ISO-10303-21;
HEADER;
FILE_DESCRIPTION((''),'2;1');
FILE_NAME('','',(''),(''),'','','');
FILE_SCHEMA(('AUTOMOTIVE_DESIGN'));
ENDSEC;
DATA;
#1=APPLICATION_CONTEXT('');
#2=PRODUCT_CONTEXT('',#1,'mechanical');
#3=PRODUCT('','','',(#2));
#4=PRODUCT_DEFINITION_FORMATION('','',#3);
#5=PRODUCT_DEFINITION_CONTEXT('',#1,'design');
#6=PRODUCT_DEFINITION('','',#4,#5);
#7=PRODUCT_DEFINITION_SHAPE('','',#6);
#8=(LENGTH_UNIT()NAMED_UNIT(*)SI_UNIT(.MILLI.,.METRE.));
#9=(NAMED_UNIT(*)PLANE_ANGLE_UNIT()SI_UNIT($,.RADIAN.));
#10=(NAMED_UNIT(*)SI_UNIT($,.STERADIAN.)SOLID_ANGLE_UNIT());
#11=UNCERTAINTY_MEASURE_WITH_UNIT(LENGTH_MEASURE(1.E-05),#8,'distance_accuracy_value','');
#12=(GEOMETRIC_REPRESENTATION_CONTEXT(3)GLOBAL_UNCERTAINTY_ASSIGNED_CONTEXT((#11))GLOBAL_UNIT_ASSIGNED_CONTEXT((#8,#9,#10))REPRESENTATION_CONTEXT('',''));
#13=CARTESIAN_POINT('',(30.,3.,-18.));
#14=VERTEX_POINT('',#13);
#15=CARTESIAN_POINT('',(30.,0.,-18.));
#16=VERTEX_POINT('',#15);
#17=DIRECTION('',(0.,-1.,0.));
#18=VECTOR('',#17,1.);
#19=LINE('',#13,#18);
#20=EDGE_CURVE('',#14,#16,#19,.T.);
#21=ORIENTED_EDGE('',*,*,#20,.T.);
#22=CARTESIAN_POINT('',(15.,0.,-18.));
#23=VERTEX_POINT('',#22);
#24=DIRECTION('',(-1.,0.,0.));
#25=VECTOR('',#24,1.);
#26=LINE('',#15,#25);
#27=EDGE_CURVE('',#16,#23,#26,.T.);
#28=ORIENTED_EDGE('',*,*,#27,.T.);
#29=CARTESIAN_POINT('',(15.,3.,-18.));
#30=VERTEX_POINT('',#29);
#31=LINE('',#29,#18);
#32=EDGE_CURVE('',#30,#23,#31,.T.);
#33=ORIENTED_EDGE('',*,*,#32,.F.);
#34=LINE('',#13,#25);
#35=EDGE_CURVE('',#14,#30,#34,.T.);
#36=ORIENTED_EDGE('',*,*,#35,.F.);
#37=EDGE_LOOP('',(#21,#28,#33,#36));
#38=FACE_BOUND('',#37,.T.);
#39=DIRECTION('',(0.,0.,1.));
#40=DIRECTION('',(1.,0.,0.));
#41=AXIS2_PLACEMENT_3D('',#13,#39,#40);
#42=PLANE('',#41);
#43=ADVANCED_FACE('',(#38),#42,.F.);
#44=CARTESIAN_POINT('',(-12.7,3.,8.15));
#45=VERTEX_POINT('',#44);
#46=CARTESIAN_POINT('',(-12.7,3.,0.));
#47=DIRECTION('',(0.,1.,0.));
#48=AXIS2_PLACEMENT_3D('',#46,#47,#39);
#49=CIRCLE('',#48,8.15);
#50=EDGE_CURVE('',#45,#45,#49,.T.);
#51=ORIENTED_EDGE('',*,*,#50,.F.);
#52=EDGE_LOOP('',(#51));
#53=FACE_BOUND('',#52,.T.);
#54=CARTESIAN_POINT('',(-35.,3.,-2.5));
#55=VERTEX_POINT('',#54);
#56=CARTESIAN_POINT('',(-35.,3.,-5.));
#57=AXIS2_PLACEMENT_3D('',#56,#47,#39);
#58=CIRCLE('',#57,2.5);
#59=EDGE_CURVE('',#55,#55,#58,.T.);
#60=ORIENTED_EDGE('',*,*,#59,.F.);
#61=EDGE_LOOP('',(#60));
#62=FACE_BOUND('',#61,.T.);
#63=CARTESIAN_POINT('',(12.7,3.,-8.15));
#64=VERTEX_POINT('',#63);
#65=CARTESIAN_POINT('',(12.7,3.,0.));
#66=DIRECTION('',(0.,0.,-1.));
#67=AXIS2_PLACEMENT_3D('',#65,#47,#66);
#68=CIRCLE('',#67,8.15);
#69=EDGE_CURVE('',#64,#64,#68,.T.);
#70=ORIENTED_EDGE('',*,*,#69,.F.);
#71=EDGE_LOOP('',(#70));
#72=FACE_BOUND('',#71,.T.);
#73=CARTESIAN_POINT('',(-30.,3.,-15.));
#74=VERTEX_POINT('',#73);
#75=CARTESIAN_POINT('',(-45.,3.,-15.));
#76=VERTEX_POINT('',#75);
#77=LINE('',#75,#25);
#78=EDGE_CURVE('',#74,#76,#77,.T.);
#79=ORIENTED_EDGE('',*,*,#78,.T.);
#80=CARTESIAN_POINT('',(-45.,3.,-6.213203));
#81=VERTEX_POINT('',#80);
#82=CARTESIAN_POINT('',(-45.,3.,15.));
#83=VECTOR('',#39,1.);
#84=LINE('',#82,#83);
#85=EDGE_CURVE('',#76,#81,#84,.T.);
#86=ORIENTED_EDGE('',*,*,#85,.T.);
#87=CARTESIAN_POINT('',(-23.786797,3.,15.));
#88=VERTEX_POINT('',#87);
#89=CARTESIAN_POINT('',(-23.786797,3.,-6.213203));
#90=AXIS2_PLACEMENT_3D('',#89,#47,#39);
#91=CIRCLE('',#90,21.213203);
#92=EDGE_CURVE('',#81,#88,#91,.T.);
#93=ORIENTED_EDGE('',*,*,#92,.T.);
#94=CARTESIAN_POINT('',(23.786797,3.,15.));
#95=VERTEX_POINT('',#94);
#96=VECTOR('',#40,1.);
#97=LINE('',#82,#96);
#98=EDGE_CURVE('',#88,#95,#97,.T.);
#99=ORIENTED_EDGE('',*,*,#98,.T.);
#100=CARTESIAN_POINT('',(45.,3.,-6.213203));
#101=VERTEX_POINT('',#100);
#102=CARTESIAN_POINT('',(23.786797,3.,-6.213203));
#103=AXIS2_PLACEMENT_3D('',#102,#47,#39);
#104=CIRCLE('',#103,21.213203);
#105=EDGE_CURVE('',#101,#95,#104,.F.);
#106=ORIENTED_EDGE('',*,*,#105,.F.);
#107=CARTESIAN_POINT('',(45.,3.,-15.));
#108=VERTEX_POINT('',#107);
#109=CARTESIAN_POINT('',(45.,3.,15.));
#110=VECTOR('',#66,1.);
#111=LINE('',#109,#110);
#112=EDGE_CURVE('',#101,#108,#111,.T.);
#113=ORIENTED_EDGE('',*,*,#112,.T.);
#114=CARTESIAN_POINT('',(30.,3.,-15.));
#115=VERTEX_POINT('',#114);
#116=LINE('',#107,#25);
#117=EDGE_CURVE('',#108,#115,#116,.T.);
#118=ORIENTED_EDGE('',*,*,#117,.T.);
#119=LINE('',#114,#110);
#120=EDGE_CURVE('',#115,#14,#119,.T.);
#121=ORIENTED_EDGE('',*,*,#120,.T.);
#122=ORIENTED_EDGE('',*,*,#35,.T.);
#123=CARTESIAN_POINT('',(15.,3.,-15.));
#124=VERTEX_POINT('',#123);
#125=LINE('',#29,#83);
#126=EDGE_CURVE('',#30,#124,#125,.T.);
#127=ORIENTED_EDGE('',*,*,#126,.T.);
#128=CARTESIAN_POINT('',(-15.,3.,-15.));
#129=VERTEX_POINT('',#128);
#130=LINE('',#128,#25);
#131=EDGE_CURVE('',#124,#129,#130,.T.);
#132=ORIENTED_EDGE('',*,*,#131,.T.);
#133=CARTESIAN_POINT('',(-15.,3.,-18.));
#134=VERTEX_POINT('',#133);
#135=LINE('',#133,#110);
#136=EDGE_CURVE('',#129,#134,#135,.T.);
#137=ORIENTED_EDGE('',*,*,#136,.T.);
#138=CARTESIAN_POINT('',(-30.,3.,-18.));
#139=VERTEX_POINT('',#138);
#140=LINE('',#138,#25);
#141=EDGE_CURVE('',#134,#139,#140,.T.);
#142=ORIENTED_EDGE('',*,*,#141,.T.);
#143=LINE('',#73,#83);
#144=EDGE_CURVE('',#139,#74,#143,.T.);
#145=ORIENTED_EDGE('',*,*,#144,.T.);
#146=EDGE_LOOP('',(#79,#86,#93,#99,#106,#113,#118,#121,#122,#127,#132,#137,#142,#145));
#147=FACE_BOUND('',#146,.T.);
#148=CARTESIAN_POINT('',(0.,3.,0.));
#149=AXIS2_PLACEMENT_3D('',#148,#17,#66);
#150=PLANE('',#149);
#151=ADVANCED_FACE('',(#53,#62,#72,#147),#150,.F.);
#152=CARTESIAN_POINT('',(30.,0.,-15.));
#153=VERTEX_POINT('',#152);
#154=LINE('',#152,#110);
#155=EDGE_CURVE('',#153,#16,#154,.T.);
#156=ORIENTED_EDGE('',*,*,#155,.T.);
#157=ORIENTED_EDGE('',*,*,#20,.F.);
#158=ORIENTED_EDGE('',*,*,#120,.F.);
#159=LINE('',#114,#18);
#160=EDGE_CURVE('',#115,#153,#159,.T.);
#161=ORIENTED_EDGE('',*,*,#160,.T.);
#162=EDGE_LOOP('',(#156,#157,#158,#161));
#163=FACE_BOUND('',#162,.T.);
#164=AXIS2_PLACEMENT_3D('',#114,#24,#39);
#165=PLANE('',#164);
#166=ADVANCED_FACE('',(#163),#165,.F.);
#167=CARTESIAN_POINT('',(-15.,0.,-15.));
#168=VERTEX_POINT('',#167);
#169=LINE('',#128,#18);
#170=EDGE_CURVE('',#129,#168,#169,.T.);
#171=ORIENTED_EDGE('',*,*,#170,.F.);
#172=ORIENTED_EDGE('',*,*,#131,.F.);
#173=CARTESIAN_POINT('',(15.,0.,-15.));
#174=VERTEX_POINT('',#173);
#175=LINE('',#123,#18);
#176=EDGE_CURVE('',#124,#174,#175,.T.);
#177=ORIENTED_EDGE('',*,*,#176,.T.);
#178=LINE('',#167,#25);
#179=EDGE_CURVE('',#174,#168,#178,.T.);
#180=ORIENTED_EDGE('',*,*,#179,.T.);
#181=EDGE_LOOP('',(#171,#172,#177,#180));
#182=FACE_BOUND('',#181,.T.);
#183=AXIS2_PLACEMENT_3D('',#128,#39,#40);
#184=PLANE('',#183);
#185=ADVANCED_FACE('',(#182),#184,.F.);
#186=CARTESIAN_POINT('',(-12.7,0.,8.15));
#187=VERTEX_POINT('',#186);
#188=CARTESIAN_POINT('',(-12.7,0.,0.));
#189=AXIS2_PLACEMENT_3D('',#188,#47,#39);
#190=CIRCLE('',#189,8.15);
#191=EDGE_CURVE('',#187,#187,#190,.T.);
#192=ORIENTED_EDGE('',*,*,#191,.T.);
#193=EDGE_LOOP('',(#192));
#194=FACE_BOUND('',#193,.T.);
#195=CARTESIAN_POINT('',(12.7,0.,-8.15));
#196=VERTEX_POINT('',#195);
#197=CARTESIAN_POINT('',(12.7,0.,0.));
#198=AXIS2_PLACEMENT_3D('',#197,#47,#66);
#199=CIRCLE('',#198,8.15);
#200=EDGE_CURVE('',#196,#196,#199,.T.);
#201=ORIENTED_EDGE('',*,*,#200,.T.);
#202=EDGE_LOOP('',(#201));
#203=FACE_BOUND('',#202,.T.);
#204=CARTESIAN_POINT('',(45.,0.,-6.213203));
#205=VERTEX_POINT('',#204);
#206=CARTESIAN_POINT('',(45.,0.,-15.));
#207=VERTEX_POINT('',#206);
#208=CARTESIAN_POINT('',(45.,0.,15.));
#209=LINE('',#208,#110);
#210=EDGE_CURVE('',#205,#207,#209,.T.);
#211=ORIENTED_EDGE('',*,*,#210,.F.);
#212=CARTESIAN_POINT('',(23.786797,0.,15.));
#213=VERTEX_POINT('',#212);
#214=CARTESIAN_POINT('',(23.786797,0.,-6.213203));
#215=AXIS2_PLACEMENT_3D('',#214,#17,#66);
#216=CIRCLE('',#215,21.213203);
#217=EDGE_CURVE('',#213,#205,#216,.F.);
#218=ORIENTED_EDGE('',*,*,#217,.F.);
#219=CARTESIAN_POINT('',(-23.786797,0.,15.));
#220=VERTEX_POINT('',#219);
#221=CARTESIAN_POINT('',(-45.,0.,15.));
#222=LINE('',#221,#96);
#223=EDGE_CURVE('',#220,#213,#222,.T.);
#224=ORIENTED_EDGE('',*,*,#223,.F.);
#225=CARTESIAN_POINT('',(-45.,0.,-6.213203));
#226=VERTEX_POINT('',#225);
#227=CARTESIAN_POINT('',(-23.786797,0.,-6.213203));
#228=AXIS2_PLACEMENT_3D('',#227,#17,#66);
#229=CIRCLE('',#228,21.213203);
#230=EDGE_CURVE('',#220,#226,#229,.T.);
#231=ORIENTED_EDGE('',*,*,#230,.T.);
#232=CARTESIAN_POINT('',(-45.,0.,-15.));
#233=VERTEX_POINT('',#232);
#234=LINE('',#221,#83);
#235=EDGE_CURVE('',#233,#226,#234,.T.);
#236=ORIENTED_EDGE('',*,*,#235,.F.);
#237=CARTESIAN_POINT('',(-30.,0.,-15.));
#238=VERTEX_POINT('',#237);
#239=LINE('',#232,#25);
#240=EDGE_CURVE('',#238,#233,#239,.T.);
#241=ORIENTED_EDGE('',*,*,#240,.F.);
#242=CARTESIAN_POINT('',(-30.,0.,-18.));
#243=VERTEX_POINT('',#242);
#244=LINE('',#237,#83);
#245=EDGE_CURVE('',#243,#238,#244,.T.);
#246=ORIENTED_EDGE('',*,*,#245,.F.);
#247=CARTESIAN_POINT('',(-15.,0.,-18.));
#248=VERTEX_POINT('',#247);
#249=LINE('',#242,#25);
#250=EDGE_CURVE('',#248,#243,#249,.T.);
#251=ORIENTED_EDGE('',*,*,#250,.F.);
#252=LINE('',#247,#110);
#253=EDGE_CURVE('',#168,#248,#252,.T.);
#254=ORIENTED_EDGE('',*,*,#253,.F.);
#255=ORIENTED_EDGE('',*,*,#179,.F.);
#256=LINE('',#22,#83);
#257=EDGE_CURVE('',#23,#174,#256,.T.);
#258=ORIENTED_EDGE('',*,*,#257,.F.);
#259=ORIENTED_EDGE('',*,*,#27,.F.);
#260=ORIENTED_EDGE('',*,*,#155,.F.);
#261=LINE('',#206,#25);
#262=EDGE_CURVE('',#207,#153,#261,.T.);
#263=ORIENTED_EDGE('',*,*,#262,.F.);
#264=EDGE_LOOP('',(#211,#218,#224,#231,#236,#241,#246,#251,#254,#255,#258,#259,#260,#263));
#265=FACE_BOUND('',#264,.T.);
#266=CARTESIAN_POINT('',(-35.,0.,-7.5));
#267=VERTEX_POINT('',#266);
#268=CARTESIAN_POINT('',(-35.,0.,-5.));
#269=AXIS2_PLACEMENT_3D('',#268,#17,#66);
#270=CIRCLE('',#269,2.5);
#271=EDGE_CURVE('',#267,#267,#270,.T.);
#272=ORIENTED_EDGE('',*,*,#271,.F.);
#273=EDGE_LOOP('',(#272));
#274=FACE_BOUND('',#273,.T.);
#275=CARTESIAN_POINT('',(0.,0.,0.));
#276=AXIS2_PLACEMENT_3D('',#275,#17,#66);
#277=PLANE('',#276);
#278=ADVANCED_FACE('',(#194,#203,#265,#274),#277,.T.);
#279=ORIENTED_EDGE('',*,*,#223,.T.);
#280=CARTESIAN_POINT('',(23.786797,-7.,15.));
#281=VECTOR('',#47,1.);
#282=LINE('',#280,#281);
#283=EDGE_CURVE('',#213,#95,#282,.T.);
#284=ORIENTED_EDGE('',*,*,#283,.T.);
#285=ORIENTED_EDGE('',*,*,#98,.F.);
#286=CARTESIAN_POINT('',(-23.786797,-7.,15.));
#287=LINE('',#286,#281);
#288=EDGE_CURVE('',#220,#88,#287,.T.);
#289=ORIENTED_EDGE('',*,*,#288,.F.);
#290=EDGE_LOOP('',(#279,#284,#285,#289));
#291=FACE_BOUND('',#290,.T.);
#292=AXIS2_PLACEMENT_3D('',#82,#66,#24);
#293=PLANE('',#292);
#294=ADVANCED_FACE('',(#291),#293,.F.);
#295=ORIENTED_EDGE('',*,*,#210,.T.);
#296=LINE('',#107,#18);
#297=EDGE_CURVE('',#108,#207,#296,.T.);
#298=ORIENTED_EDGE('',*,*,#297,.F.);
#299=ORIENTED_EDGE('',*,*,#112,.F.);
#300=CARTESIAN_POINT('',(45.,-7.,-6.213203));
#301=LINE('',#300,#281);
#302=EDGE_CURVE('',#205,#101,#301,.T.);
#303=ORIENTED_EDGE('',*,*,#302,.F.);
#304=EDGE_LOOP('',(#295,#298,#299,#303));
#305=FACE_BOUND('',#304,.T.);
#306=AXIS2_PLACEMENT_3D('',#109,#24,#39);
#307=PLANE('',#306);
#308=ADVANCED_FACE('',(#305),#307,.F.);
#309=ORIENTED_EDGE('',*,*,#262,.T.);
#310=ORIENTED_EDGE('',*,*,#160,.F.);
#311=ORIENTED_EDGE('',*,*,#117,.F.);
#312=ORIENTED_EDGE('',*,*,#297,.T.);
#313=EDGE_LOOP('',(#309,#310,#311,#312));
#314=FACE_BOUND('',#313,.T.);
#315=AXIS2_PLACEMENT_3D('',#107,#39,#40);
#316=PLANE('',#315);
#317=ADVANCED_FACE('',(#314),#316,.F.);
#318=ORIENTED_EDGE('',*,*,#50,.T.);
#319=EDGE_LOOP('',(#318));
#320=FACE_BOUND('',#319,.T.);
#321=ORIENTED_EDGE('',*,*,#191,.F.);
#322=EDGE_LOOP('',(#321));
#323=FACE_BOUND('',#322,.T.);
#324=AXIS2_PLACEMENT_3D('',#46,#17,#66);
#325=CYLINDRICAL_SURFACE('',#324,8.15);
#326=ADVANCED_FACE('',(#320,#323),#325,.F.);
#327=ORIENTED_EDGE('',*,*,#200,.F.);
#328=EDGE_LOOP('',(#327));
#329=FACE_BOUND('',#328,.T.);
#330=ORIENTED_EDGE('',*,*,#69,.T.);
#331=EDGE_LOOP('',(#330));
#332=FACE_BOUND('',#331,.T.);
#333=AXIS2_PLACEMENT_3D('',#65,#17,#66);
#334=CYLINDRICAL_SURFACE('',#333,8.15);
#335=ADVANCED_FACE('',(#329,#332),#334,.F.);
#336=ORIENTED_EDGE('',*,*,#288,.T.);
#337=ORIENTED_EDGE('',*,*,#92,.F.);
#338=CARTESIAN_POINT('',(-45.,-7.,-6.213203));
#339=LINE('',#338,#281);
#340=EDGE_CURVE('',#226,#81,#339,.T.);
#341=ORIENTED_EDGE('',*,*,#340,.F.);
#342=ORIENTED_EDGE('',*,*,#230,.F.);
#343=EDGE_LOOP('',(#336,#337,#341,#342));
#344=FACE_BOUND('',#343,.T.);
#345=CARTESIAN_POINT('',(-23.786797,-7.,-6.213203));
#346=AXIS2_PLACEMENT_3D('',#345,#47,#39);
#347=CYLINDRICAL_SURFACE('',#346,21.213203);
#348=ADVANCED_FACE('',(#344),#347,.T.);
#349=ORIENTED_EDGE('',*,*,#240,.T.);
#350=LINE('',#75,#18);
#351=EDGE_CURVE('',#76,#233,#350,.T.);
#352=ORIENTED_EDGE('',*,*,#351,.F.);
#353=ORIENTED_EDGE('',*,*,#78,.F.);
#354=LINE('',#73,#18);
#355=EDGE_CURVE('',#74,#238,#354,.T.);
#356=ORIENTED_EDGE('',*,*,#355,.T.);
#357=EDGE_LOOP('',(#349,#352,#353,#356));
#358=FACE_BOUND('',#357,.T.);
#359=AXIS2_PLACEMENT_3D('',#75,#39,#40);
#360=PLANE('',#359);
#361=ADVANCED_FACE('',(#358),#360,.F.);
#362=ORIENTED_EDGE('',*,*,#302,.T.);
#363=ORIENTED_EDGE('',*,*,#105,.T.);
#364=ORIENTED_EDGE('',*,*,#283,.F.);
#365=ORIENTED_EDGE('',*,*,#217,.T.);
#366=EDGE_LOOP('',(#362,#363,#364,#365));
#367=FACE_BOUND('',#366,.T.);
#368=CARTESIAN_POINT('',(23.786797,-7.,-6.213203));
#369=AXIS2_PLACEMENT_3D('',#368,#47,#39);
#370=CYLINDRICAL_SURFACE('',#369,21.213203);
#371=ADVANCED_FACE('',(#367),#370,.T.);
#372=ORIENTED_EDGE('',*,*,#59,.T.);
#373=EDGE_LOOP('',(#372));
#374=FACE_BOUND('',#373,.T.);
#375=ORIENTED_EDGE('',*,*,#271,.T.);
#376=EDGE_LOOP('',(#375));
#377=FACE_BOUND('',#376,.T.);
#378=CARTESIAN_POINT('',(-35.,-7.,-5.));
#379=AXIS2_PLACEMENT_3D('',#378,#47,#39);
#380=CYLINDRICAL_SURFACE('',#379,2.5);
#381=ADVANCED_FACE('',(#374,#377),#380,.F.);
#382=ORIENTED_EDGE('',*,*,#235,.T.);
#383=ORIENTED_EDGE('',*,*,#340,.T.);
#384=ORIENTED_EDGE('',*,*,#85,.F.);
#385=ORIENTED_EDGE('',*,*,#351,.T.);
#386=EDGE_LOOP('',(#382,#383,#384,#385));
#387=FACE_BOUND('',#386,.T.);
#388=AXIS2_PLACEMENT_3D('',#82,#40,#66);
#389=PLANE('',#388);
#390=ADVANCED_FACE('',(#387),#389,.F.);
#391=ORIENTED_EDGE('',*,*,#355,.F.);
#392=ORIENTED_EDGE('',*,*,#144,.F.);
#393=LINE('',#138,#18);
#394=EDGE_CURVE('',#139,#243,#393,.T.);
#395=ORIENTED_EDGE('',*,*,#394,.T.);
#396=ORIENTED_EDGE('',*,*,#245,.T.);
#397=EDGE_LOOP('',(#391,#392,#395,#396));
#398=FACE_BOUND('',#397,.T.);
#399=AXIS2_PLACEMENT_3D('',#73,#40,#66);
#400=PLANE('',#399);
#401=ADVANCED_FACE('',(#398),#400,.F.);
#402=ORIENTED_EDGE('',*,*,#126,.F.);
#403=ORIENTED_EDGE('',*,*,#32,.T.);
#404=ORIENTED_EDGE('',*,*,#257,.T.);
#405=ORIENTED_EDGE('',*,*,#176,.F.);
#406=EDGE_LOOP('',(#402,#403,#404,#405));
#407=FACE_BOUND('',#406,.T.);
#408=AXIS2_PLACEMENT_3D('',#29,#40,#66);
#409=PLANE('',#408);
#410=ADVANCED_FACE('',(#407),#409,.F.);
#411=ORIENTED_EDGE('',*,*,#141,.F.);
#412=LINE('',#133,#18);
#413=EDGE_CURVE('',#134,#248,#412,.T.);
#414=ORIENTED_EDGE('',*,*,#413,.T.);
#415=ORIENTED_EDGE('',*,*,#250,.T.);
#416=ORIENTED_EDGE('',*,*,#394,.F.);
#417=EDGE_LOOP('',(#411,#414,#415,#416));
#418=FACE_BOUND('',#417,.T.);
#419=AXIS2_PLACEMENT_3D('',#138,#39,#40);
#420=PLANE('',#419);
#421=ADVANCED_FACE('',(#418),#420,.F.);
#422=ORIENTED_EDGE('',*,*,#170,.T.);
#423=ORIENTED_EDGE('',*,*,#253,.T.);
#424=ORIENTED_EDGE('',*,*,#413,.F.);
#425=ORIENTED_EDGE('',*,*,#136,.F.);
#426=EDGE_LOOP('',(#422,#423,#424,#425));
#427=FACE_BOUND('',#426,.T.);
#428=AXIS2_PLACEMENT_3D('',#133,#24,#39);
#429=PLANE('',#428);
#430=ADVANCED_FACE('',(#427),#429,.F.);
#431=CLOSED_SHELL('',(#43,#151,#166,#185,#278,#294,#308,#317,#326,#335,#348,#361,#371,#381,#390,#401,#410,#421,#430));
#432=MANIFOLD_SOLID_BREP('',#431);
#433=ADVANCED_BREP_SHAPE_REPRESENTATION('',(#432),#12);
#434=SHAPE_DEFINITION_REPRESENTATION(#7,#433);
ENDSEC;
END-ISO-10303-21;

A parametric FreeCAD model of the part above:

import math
import FreeCAD as App
import Part
import Sketcher
Q = App.Units.Quantity

doc = App.newDocument("Part")
body = doc.addObject("PartDesign::Body", "Body")

# Sketch on XZ plane
sketch1 = body.newObject("Sketcher::SketchObject", "Sketch")
sketch1.AttachmentSupport = (doc.getObject("XZ_Plane"), [""])
sketch1.MapMode = "FlatFace"
sketch1.addGeometry([
    Part.LineSegment(App.Vector(-30, -15, 0), App.Vector(-45, -15, 0)),  # 0
    Part.LineSegment(App.Vector(-45, -15, 0), App.Vector(-45, 15, 0)),  # 1
    Part.LineSegment(App.Vector(-45, 15, 0), App.Vector(45, 15, 0)),  # 2
    Part.LineSegment(App.Vector(45, 15, 0), App.Vector(45, -15, 0)),  # 3
    Part.LineSegment(App.Vector(45, -15, 0), App.Vector(30, -15, 0)),  # 4
    Part.LineSegment(App.Vector(30, -15, 0), App.Vector(30, -18, 0)),  # 5
    Part.LineSegment(App.Vector(30, -18, 0), App.Vector(15, -18, 0)),  # 6
    Part.LineSegment(App.Vector(15, -18, 0), App.Vector(15, -15, 0)),  # 7
    Part.LineSegment(App.Vector(15, -15, 0), App.Vector(-15, -15, 0)),  # 8
    Part.LineSegment(App.Vector(-15, -15, 0), App.Vector(-15, -18, 0)),  # 9
    Part.LineSegment(App.Vector(-15, -18, 0), App.Vector(-30, -18, 0)),  # 10
    Part.LineSegment(App.Vector(-30, -18, 0), App.Vector(-30, -15, 0)),  # 11
], False)
sketch1.addConstraint([
    Sketcher.Constraint("Coincident", 0, 2, 1, 1),
    Sketcher.Constraint("Coincident", 1, 2, 2, 1),
    Sketcher.Constraint("Coincident", 2, 2, 3, 1),
    Sketcher.Constraint("Coincident", 3, 2, 4, 1),
    Sketcher.Constraint("Coincident", 4, 2, 5, 1),
    Sketcher.Constraint("Coincident", 5, 2, 6, 1),
    Sketcher.Constraint("Coincident", 6, 2, 7, 1),
    Sketcher.Constraint("Coincident", 7, 2, 8, 1),
    Sketcher.Constraint("Coincident", 8, 2, 9, 1),
    Sketcher.Constraint("Coincident", 9, 2, 10, 1),
    Sketcher.Constraint("Coincident", 10, 2, 11, 1),
    Sketcher.Constraint("Coincident", 11, 2, 0, 1),
    Sketcher.Constraint("Horizontal", 0),
    Sketcher.Constraint("Vertical", 1),
    Sketcher.Constraint("Horizontal", 2),
    Sketcher.Constraint("Vertical", 3),
    Sketcher.Constraint("Horizontal", 4),
    Sketcher.Constraint("Vertical", 5),
    Sketcher.Constraint("Horizontal", 6),
    Sketcher.Constraint("Vertical", 7),
    Sketcher.Constraint("Horizontal", 8),
    Sketcher.Constraint("Vertical", 9),
    Sketcher.Constraint("Horizontal", 10),
    Sketcher.Constraint("Vertical", 11),
    Sketcher.Constraint("Symmetric", 0, 2, 2, 2, -1, 1),
    Sketcher.Constraint("Symmetric", 6, 2, 9, 2, -2),
    Sketcher.Constraint("Symmetric", 4, 2, 11, 2, -2),
    Sketcher.Constraint("Horizontal", 4, 2, 7, 2),
    Sketcher.Constraint("Equal", 4, 6),
    Sketcher.Constraint("Equal", 8, 1),
    Sketcher.Constraint("DistanceX", 0, 2, 0, 1, Q("15 mm")),
    Sketcher.Constraint("DistanceX", 2, 1, 2, 2, Q("90 mm")),
    Sketcher.Constraint("DistanceY", 5, 2, 5, 1, Q("3 mm")),
])
pad1 = body.newObject("PartDesign::Pad", "Pad")
pad1.Profile = sketch1
pad1.Length = 3
pad1.Reversed = True

# Sketch on XZ plane
sketch2 = body.newObject("Sketcher::SketchObject", "Sketch001")
sketch2.AttachmentSupport = (doc.getObject("XZ_Plane"), [""])
sketch2.MapMode = "FlatFace"
sketch2.addGeometry([
    Part.Circle(App.Vector(-12.7, 0, 0), App.Vector(0, 0, 1), 8.15),
    Part.Circle(App.Vector(12.7, 0, 0), App.Vector(0, 0, 1), 8.15),
], False)
sketch2.addConstraint([
    Sketcher.Constraint("Equal", 0, 1),
    Sketcher.Constraint("Symmetric", 0, 3, 1, 3, -1, 1),
    Sketcher.Constraint("PointOnObject", 0, 3, -1),
    Sketcher.Constraint("Diameter", 0, Q("16.3 mm")),
    Sketcher.Constraint("DistanceX", 0, 3, -1, 1, Q("12.7 mm")),
])
pocket1 = body.newObject("PartDesign::Pocket", "Pocket")
pocket1.Profile = sketch2
pocket1.Type = "ThroughAll"

# Sketch on XZ plane
sketch3 = body.newObject("Sketcher::SketchObject", "Sketch002")
sketch3.AttachmentSupport = (doc.getObject("XZ_Plane"), [""])
sketch3.MapMode = "FlatFace"
sketch3.AttachmentOffset = App.Placement(App.Vector(0, 0, -3), App.Rotation())
sketch3.addGeometry(Part.Circle(App.Vector(-35, -5, 0), App.Vector(0, 0, 1), 2.5), False)
sketch3.addConstraint([
    Sketcher.Constraint("Diameter", 0, Q("5 mm")),
    Sketcher.Constraint("DistanceX", 0, 3, -1, 1, Q("35 mm")),
    Sketcher.Constraint("DistanceY", 0, 3, -1, 1, Q("5 mm")),
])
pocket2 = body.newObject("PartDesign::Pocket", "Pocket001")
pocket2.Profile = sketch3
pocket2.Length = 10
pocket2.Reversed = True

# Sketch on XZ plane
sketch4 = body.newObject("Sketcher::SketchObject", "Sketch003")
sketch4.AttachmentSupport = (doc.getObject("XZ_Plane"), [""])
sketch4.MapMode = "FlatFace"
sketch4.AttachmentOffset = App.Placement(App.Vector(0, 0, -3), App.Rotation())
sketch4.addGeometry([
    Part.ArcOfCircle(Part.Circle(App.Vector(-23.786797, -6.213203, 0), App.Vector(0, 0, 1), 21.213203), math.radians(90), math.radians(180)),  # 0
    Part.LineSegment(App.Vector(-45, -6.213203, 0), App.Vector(-45, 15, 0)),  # 1
    Part.LineSegment(App.Vector(-45, 15, 0), App.Vector(-23.786797, 15, 0)),  # 2
    Part.ArcOfCircle(Part.Circle(App.Vector(23.786797, -6.213203, 0), App.Vector(0, 0, 1), 21.213203), math.radians(0), math.radians(90)),  # 3
    Part.LineSegment(App.Vector(23.786797, 15, 0), App.Vector(45, 15, 0)),  # 4
    Part.LineSegment(App.Vector(45, 15, 0), App.Vector(45, -6.213203, 0)),  # 5
], False)
sketch4.addConstraint([
    Sketcher.Constraint("Tangent", 0, 2, 1, 1),
    Sketcher.Constraint("Coincident", 1, 2, 2, 1),
    Sketcher.Constraint("Tangent", 2, 2, 0, 1),
    Sketcher.Constraint("Tangent", 3, 2, 4, 1),
    Sketcher.Constraint("Coincident", 4, 2, 5, 1),
    Sketcher.Constraint("Tangent", 5, 2, 3, 1),
    Sketcher.Constraint("Vertical", 1),
    Sketcher.Constraint("Horizontal", 2),
    Sketcher.Constraint("Horizontal", 4),
    Sketcher.Constraint("Vertical", 5),
    Sketcher.Constraint("Equal", 0, 3),
    Sketcher.Constraint("Symmetric", 0, 3, 3, 3, -2),
    Sketcher.Constraint("DistanceX", 0, 2, -1, 1, Q("45 mm")),
    Sketcher.Constraint("DistanceY", -1, 1, 1, 2, Q("15 mm")),
    Sketcher.Constraint("Radius", 0, Q("21.213203 mm")),
])
pocket3 = body.newObject("PartDesign::Pocket", "Pocket002")
pocket3.Profile = sketch4
pocket3.Length = 10
pocket3.Reversed = True

doc.recompute()
